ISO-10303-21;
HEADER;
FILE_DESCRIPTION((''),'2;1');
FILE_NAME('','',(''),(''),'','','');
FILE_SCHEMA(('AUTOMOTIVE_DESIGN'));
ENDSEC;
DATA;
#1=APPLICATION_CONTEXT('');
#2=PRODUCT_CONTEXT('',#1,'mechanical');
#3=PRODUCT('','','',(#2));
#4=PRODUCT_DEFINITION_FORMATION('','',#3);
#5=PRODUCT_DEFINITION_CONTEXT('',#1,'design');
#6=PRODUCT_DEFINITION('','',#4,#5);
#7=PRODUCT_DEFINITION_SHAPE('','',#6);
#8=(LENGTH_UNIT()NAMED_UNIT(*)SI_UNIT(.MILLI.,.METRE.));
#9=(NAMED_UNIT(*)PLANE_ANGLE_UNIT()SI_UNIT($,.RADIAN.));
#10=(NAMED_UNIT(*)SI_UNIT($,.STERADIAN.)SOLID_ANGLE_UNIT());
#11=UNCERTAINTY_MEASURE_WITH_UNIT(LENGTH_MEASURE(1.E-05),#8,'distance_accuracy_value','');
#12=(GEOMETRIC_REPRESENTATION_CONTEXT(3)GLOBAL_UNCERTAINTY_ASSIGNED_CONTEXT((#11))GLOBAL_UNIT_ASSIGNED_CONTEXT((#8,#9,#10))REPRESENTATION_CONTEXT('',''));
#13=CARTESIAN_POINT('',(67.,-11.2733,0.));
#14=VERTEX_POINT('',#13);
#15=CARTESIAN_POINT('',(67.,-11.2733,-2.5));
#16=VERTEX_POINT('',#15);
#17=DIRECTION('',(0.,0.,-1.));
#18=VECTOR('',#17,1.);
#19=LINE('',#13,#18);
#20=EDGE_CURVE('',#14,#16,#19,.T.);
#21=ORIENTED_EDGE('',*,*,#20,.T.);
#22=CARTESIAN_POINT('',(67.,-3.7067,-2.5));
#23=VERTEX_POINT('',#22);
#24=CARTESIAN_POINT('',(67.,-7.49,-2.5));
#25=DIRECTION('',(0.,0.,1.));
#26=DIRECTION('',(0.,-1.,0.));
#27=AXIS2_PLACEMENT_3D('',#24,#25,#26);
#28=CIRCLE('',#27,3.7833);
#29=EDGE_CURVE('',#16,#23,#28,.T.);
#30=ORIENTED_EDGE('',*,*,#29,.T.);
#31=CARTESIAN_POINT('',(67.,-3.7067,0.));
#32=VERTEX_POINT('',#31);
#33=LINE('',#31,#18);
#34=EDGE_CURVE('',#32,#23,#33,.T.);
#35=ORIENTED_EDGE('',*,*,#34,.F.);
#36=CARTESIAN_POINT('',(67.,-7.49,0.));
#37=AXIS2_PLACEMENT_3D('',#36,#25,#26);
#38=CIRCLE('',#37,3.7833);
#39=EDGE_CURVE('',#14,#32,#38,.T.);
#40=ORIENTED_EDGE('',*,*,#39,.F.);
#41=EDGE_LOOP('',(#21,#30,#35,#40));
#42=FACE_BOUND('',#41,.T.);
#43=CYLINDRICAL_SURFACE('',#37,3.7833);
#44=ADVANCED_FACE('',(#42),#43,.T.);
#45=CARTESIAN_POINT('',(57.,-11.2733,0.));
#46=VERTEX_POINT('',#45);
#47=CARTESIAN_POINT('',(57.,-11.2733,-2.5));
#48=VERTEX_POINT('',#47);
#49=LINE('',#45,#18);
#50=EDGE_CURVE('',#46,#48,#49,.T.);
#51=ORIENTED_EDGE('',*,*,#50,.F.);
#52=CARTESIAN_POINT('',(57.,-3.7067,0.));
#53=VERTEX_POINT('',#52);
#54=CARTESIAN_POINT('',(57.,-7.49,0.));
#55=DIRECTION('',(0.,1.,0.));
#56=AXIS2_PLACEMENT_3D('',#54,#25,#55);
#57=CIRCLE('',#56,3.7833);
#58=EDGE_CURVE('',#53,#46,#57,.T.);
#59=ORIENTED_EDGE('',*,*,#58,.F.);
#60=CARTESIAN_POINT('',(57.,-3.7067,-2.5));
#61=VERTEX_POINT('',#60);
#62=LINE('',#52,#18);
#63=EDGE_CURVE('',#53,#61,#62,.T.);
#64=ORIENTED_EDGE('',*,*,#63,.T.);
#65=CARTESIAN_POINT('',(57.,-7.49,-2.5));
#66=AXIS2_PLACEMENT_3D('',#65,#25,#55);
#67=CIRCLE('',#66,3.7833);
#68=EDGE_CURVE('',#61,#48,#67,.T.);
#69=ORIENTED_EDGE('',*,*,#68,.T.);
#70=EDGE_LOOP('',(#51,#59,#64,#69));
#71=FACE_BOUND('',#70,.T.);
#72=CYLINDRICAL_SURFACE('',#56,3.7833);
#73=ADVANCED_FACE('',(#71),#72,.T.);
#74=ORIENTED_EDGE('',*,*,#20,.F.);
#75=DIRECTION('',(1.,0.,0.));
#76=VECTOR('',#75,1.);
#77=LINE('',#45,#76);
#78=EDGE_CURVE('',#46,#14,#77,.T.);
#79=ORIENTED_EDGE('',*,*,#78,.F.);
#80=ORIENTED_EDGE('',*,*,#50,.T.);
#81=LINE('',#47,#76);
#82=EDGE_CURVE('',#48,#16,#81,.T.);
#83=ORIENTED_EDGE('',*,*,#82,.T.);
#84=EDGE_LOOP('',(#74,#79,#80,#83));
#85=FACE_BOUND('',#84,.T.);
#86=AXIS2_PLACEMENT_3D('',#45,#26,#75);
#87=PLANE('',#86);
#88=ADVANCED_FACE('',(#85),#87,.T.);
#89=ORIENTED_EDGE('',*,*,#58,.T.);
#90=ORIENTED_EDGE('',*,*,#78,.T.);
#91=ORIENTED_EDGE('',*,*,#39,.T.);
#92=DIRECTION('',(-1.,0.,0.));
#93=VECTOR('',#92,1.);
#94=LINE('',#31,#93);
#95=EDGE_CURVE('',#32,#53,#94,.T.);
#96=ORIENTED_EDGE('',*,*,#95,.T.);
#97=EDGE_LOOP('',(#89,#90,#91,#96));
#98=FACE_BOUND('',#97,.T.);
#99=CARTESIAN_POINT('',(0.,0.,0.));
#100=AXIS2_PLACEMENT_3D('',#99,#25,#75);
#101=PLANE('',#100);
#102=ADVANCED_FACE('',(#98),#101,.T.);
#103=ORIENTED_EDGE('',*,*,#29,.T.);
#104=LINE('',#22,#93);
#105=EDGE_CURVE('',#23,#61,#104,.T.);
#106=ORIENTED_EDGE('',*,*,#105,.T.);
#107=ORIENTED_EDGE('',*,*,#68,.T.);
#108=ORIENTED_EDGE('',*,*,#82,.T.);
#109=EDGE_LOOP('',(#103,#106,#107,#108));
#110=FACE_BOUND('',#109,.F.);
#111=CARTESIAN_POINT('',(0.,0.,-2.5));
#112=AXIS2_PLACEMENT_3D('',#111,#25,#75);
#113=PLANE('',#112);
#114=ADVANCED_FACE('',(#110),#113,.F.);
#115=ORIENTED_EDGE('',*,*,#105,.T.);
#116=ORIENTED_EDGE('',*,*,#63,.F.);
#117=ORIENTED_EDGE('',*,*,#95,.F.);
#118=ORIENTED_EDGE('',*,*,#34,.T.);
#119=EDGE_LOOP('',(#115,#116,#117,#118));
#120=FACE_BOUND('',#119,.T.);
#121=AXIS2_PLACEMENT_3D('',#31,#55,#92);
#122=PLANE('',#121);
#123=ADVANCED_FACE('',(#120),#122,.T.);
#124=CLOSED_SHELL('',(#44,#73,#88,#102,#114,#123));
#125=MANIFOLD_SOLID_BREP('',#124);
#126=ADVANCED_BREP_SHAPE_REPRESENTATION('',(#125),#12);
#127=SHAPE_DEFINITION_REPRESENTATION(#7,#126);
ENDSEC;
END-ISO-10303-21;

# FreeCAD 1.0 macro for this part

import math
import FreeCAD as App
import Part
import Sketcher

V = App.Vector

doc = App.newDocument("Part")
body = doc.addObject("PartDesign::Body", "Body")

sketch1 = doc.addObject("Sketcher::SketchObject", "Sketch")
body.addObject(sketch1)
sketch1.AttachmentSupport = (doc.XY_Plane, [""])
sketch1.MapMode = "FlatFace"
sketch1.addGeometry([
    Part.ArcOfCircle(Part.Circle(V(57, -7.49, 0), V(0, 0, 1), 3.7833), math.radians(90), math.radians(270)),
    Part.LineSegment(V(57, -11.2733, 0), V(67, -11.2733, 0)),
    Part.ArcOfCircle(Part.Circle(V(67, -7.49, 0), V(0, 0, 1), 3.7833), math.radians(-90), math.radians(90)),
    Part.LineSegment(V(67, -3.7067, 0), V(57, -3.7067, 0)),
], False)
sketch1.addConstraint([
    Sketcher.Constraint("Tangent", 0, 2, 1, 1),
    Sketcher.Constraint("Tangent", 1, 2, 2, 1),
    Sketcher.Constraint("Tangent", 2, 2, 3, 1),
    Sketcher.Constraint("Tangent", 3, 2, 0, 1),
    Sketcher.Constraint("Horizontal", 1),
    Sketcher.Constraint("Horizontal", 3),
    Sketcher.Constraint("DistanceX", 1, 1, 1, 2, 10.0),
    Sketcher.Constraint("DistanceX", -1, 1, 0, 3, 57.0),
    Sketcher.Constraint("Radius", 0, 3.7833),
    Sketcher.Constraint("DistanceY", 0, 3, -1, 1, 7.49),
])
pad1 = doc.addObject("PartDesign::Pad", "Pad")
body.addObject(pad1)
pad1.Profile = sketch1
pad1.Length = 2.5
pad1.Reversed = True

doc.recompute()
